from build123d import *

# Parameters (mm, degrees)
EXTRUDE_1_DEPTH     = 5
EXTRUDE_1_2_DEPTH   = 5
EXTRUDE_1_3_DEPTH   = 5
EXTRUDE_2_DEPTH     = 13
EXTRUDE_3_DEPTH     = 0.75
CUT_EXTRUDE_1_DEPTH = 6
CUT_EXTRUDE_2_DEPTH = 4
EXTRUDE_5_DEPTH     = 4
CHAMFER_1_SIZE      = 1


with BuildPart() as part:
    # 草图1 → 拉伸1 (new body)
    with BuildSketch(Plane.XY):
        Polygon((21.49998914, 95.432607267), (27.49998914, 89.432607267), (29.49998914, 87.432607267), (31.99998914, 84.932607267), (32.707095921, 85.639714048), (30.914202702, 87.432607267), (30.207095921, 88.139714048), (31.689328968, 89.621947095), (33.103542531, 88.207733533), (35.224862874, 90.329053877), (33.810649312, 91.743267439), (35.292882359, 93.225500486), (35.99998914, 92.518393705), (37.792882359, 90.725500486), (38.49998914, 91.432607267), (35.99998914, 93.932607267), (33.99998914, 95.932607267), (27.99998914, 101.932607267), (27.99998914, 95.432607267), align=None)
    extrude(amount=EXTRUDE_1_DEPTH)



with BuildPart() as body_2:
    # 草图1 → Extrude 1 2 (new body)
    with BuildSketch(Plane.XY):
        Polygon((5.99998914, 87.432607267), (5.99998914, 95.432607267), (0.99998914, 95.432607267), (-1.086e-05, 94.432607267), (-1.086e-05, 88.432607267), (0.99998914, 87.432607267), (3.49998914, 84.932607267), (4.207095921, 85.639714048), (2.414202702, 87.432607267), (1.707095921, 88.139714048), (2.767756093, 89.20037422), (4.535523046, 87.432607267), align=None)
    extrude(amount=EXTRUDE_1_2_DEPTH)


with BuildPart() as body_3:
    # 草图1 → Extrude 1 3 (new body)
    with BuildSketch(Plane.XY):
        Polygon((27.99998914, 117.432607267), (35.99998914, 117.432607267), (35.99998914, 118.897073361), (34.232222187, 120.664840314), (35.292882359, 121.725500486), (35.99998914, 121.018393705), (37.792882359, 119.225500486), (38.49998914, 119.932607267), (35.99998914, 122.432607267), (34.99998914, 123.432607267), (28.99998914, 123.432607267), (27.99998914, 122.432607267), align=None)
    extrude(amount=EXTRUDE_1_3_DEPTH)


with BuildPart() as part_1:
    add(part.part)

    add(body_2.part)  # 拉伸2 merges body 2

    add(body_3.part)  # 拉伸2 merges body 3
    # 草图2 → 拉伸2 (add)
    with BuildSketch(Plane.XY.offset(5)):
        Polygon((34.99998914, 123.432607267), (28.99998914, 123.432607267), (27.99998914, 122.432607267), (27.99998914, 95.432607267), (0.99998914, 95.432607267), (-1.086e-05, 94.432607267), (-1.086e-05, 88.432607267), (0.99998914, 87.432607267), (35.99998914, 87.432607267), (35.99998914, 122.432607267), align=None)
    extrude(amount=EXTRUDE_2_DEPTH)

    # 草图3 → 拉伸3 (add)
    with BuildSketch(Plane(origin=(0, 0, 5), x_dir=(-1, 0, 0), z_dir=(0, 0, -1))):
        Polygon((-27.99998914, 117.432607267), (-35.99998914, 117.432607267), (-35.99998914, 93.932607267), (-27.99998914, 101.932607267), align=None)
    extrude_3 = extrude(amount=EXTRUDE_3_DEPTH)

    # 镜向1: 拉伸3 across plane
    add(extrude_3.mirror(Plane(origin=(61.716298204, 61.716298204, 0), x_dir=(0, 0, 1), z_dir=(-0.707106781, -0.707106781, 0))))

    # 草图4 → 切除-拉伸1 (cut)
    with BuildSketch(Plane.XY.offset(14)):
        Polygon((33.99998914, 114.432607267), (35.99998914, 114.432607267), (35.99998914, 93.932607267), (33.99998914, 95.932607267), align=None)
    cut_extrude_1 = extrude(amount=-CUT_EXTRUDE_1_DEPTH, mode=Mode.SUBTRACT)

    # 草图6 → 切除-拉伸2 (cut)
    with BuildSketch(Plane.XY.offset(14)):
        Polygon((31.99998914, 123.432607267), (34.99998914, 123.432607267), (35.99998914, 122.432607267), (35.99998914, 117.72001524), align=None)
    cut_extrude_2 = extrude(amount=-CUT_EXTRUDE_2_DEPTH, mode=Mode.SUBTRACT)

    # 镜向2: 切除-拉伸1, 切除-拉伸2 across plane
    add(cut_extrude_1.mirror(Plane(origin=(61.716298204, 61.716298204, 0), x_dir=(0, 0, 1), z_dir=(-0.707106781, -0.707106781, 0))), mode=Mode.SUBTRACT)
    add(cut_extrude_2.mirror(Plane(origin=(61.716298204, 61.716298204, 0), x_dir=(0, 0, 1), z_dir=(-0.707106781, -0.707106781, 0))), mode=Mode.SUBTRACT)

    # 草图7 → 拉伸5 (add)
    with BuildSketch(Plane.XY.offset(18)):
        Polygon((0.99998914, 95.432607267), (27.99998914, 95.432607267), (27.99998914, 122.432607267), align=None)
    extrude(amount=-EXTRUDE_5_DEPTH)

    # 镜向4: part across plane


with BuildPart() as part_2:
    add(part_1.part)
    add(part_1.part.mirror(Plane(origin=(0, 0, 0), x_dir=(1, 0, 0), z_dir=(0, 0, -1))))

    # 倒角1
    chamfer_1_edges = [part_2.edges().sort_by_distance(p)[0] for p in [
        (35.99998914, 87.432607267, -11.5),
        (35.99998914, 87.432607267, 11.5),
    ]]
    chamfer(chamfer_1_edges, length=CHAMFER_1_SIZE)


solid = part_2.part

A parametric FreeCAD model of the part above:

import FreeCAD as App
import Part
import Sketcher
from FreeCAD import Vector
Q = App.Units.Quantity


def edges_at(feature, points):
    """Names of the edges that pass closest to the given points."""
    edges = feature.Shape.Edges
    near = lambda p: min(range(len(edges)), key=lambda i: edges[i].distToShape(Part.Vertex(*p))[0])
    return sorted({f"Edge{near(p) + 1}" for p in points})


def add_polygon(sketch, points):
    """Adds a closed chain of lines whose ends are joined by coincident constraints."""
    first, n = sketch.GeometryCount, len(points)
    for a, b in zip(points, points[1:] + points[:1]):
        sketch.addGeometry(Part.LineSegment(App.Vector(*a, 0), App.Vector(*b, 0)), False)
    for i in range(n):
        sketch.addConstraint(Sketcher.Constraint("Coincident", first + i, 2, first + (i + 1) % n, 1))

doc = App.newDocument("Part")
body = doc.addObject("PartDesign::Body", "Body")

# Sketch on XY plane
sketch1 = doc.addObject("Sketcher::SketchObject", "Sketch")
body.addObject(sketch1)
sketch1.AttachmentSupport = (doc.XY_Plane, [""])
sketch1.MapMode = "FlatFace"
add_polygon(sketch1, [(21.5, 95.4), (32, 84.9), (32.7, 85.6), (30.2, 88.1), (31.7, 89.6), (33.1, 88.2), (35.2, 90.3), (33.8, 91.7), (35.3, 93.2), (37.8, 90.7), (38.5, 91.4), (28, 101.9), (28, 95.4)])  # lines 0-12
sketch1.addConstraint(Sketcher.Constraint("Vertical", 11))
sketch1.addConstraint(Sketcher.Constraint("Horizontal", 12))
sketch1.addConstraint(Sketcher.Constraint("Perpendicular", 0, 1))
sketch1.addConstraint(Sketcher.Constraint("Perpendicular", 1, 2))
sketch1.addConstraint(Sketcher.Constraint("Perpendicular", 2, 3))
sketch1.addConstraint(Sketcher.Constraint("Perpendicular", 3, 4))
sketch1.addConstraint(Sketcher.Constraint("Perpendicular", 4, 5))
sketch1.addConstraint(Sketcher.Constraint("Perpendicular", 5, 6))
sketch1.addConstraint(Sketcher.Constraint("Perpendicular", 6, 7))
sketch1.addConstraint(Sketcher.Constraint("Perpendicular", 7, 8))
sketch1.addConstraint(Sketcher.Constraint("Perpendicular", 8, 9))
sketch1.addConstraint(Sketcher.Constraint("Perpendicular", 9, 10))
sketch1.addConstraint(Sketcher.Constraint("Equal", 12, 11))
sketch1.addConstraint(Sketcher.Constraint("Equal", 4, 6))
sketch1.addConstraint(Sketcher.Constraint("Equal", 3, 7))
sketch1.addConstraint(Sketcher.Constraint("Equal", 2, 8))
sketch1.addConstraint(Sketcher.Constraint("Equal", 1, 9))
sketch1.addConstraint(Sketcher.Constraint("Equal", 0, 10))
sketch1.addConstraint(Sketcher.Constraint("Distance", 1, Q("1 mm")))
sketch1.addConstraint(Sketcher.Constraint("Distance", 4, Q("2 mm")))
sketch1.addConstraint(Sketcher.Constraint("Distance", 5, Q("3 mm")))
sketch1.addConstraint(Sketcher.Constraint("DistanceX", 12, 2, 12, 1, Q("6.5 mm")))
sketch1.addConstraint(Sketcher.Constraint("DistanceX", 2, 2, 1, 2, Q("2.5 mm")))
sketch1.addConstraint(Sketcher.Constraint("DistanceY", -1, 1, 7, 2, Q("93.2255 mm")))
sketch1.addConstraint(Sketcher.Constraint("DistanceX", -1, 1, 0, 2, Q("31.999989 mm")))
sketch1.addConstraint(Sketcher.Constraint("DistanceX", -1, 1, 10, 2, Q("27.999989 mm")))
pad1 = doc.addObject("PartDesign::Pad", "Pad")
body.addObject(pad1)
pad1.Profile = sketch1
pad1.Length = 5
body2 = doc.addObject("PartDesign::Body", "Body001")

# Sketch on XY plane
sketch2 = doc.addObject("Sketcher::SketchObject", "Sketch001")
body2.addObject(sketch2)
sketch2.AttachmentSupport = (doc.getObject("XY_Plane001"), [""])
sketch2.MapMode = "FlatFace"
add_polygon(sketch2, [(6, 87.4), (6, 95.4), (1, 95.4), (0, 94.4), (0, 88.4), (3.5, 84.9), (4.2, 85.6), (1.7, 88.1), (2.8, 89.2), (4.5, 87.4)])  # lines 0-9
sketch2.addConstraint(Sketcher.Constraint("Vertical", 0))
sketch2.addConstraint(Sketcher.Constraint("Horizontal", 1))
sketch2.addConstraint(Sketcher.Constraint("Vertical", 3))
sketch2.addConstraint(Sketcher.Constraint("Horizontal", 9))
sketch2.addConstraint(Sketcher.Constraint("Perpendicular", 2, 4))
sketch2.addConstraint(Sketcher.Constraint("Perpendicular", 4, 5))
sketch2.addConstraint(Sketcher.Constraint("Perpendicular", 5, 6))
sketch2.addConstraint(Sketcher.Constraint("Perpendicular", 6, 7))
sketch2.addConstraint(Sketcher.Constraint("Perpendicular", 7, 8))
sketch2.addConstraint(Sketcher.Constraint("DistanceX", 1, 2, 1, 1, Q("5 mm")))
sketch2.addConstraint(Sketcher.Constraint("DistanceY", 0, 1, 0, 2, Q("8 mm")))
sketch2.addConstraint(Sketcher.Constraint("DistanceY", 3, 2, 3, 1, Q("6 mm")))
sketch2.addConstraint(Sketcher.Constraint("Angle", 2, Q("-135 deg")))
sketch2.addConstraint(Sketcher.Constraint("Distance", 5, Q("1 mm")))
sketch2.addConstraint(Sketcher.Constraint("DistanceX", 2, 2, 1, 2, Q("1 mm")))
sketch2.addConstraint(Sketcher.Constraint("Distance", 7, Q("1.5 mm")))
sketch2.addConstraint(Sketcher.Constraint("Distance", 8, Q("2.5 mm")))
sketch2.addConstraint(Sketcher.Constraint("DistanceX", 3, 2, 4, 2, Q("3.5 mm")))
sketch2.addConstraint(Sketcher.Constraint("DistanceX", -1, 1, 0, 2, Q("5.999989 mm")))
sketch2.addConstraint(Sketcher.Constraint("DistanceY", -1, 1, 0, 2, Q("95.432607 mm")))
pad2 = doc.addObject("PartDesign::Pad", "Pad001")
body2.addObject(pad2)
pad2.Profile = sketch2
pad2.Length = 5
body3 = doc.addObject("PartDesign::Body", "Body002")

# Sketch on XY plane
sketch3 = doc.addObject("Sketcher::SketchObject", "Sketch002")
body3.addObject(sketch3)
sketch3.AttachmentSupport = (doc.getObject("XY_Plane002"), [""])
sketch3.MapMode = "FlatFace"
add_polygon(sketch3, [(28, 117.4), (36, 117.4), (36, 118.9), (34.2, 120.7), (35.3, 121.7), (37.8, 119.2), (38.5, 119.9), (35, 123.4), (29, 123.4), (28, 122.4)])  # lines 0-9
sketch3.addConstraint(Sketcher.Constraint("Horizontal", 0))
sketch3.addConstraint(Sketcher.Constraint("Vertical", 1))
sketch3.addConstraint(Sketcher.Constraint("Horizontal", 7))
sketch3.addConstraint(Sketcher.Constraint("Vertical", 9))
sketch3.addConstraint(Sketcher.Constraint("Perpendicular", 2, 3))
sketch3.addConstraint(Sketcher.Constraint("Perpendicular", 3, 4))
sketch3.addConstraint(Sketcher.Constraint("Perpendicular", 4, 5))
sketch3.addConstraint(Sketcher.Constraint("Perpendicular", 5, 6))
sketch3.addConstraint(Sketcher.Constraint("Perpendicular", 6, 8))
sketch3.addConstraint(Sketcher.Constraint("DistanceX", 0, 1, 0, 2, Q("8 mm")))
sketch3.addConstraint(Sketcher.Constraint("DistanceX", 7, 2, 7, 1, Q("6 mm")))
sketch3.addConstraint(Sketcher.Constraint("DistanceY", 9, 2, 9, 1, Q("5 mm")))
sketch3.addConstraint(Sketcher.Constraint("Angle", 2, Q("135 deg")))
sketch3.addConstraint(Sketcher.Constraint("Distance", 5, Q("1 mm")))
sketch3.addConstraint(Sketcher.Constraint("DistanceX", 6, 2, 1, 2, Q("1 mm")))
sketch3.addConstraint(Sketcher.Constraint("Distance", 2, Q("2.5 mm")))
sketch3.addConstraint(Sketcher.Constraint("Distance", 3, Q("1.5 mm")))
sketch3.addConstraint(Sketcher.Constraint("DistanceX", 3, 2, 4, 2, Q("2.5 mm")))
sketch3.addConstraint(Sketcher.Constraint("DistanceY", -1, 1, 3, 2, Q("121.7255 mm")))
sketch3.addConstraint(Sketcher.Constraint("DistanceX", -1, 1, 0, 2, Q("35.999989 mm")))
pad3 = doc.addObject("PartDesign::Pad", "Pad002")
body3.addObject(pad3)
pad3.Profile = sketch3
pad3.Length = 5
body.AllowCompound = True
doc.recompute()

boolean = doc.addObject("PartDesign::Boolean", "Boolean")
body.addObject(boolean)
boolean.Type = "Fuse"
boolean.addObjects([body2])
doc.recompute()

boolean2 = doc.addObject("PartDesign::Boolean", "Boolean001")
body.addObject(boolean2)
boolean2.Type = "Fuse"
boolean2.addObjects([body3])

# Sketch on XY plane
sketch4 = doc.addObject("Sketcher::SketchObject", "Sketch003")
body.addObject(sketch4)
sketch4.AttachmentSupport = (doc.XY_Plane, [""])
sketch4.MapMode = "FlatFace"
sketch4.AttachmentOffset = App.Placement(Vector(0, 0, 5), App.Rotation())
add_polygon(sketch4, [(35, 123.4), (29, 123.4), (28, 122.4), (28, 95.4), (1, 95.4), (0, 94.4), (0, 88.4), (1, 87.4), (36, 87.4), (36, 122.4)])  # lines 0-9
sketch4.addConstraint(Sketcher.Constraint("Horizontal", 0))
sketch4.addConstraint(Sketcher.Constraint("Vertical", 2))
sketch4.addConstraint(Sketcher.Constraint("Horizontal", 3))
sketch4.addConstraint(Sketcher.Constraint("Vertical", 5))
sketch4.addConstraint(Sketcher.Constraint("Horizontal", 7))
sketch4.addConstraint(Sketcher.Constraint("Vertical", 8))
sketch4.addConstraint(Sketcher.Constraint("Parallel", 1, 4))
sketch4.addConstraint(Sketcher.Constraint("Perpendicular", 4, 6))
sketch4.addConstraint(Sketcher.Constraint("Parallel", 6, 9))
sketch4.addConstraint(Sketcher.Constraint("Horizontal", 1, 2, 8, 2))
sketch4.addConstraint(Sketcher.Constraint("Vertical", 3, 2, 6, 2))
sketch4.addConstraint(Sketcher.Constraint("Equal", 3, 2))
sketch4.addConstraint(Sketcher.Constraint("Equal", 0, 5))
sketch4.addConstraint(Sketcher.Constraint("Equal", 7, 8))
sketch4.addConstraint(Sketcher.Constraint("Equal", 1, 4))
sketch4.addConstraint(Sketcher.Constraint("DistanceX", 0, 2, 0, 1, Q("6 mm")))
sketch4.addConstraint(Sketcher.Constraint("DistanceX", 3, 2, 3, 1, Q("27 mm")))
sketch4.addConstraint(Sketcher.Constraint("DistanceX", 7, 1, 7, 2, Q("35 mm")))
sketch4.addConstraint(Sketcher.Constraint("DistanceX", -1, 1, 0, 2, Q("28.999989 mm")))
sketch4.addConstraint(Sketcher.Constraint("DistanceY", -1, 1, 0, 2, Q("123.432607 mm")))
pad4 = doc.addObject("PartDesign::Pad", "Pad003")
body.addObject(pad4)
pad4.Profile = sketch4
pad4.Length = 13

# Sketch on XY plane
sketch5 = doc.addObject("Sketcher::SketchObject", "Sketch004")
body.addObject(sketch5)
sketch5.AttachmentSupport = (doc.XY_Plane, [""])
sketch5.MapMode = "FlatFace"
sketch5.AttachmentOffset = App.Placement(Vector(0, 0, 5), App.Rotation())
add_polygon(sketch5, [(28, 117), (36, 117), (36, 94), (28, 102)])  # lines 0-3
sketch5.addConstraint(Sketcher.Constraint("Horizontal", 0))
sketch5.addConstraint(Sketcher.Constraint("Vertical", 1))
sketch5.addConstraint(Sketcher.Constraint("Vertical", 3))
sketch5.addConstraint(Sketcher.Constraint("DistanceX", 0, 1, 0, 2, Q("8 mm")))
sketch5.addConstraint(Sketcher.Constraint("Angle", 2, Q("135 deg")))
sketch5.addConstraint(Sketcher.Constraint("DistanceY", 1, 2, 1, 1, Q("23.5 mm")))
sketch5.addConstraint(Sketcher.Constraint("DistanceX", -1, 1, 0, 2, Q("35.999989 mm")))
sketch5.addConstraint(Sketcher.Constraint("DistanceY", -1, 1, 0, 2, Q("117.432607 mm")))
pad5 = doc.addObject("PartDesign::Pad", "Pad004")
body.addObject(pad5)
pad5.Profile = sketch5
pad5.Length = 0.75
pad5.Reversed = True
doc.recompute()

datumplane = doc.addObject("PartDesign::Plane", "DatumPlane")
body.addObject(datumplane)
datumplane.Placement = App.Placement(Vector(61.716298, 61.716298, 0), App.Rotation(Vector(-0.707106781, 0.707106781, 0), Vector(0, 0, -1), Vector(-0.707106781, -0.707106781, 0), "ZXY"))
mirrored = doc.addObject("PartDesign::Mirrored", "Mirrored")
body.addObject(mirrored)
mirrored.Originals = [pad5]
mirrored.MirrorPlane = (datumplane, [""])
body.Tip = mirrored

# Sketch on XY plane
sketch6 = doc.addObject("Sketcher::SketchObject", "Sketch005")
body.addObject(sketch6)
sketch6.AttachmentSupport = (doc.XY_Plane, [""])
sketch6.MapMode = "FlatFace"
sketch6.AttachmentOffset = App.Placement(Vector(0, 0, 14), App.Rotation())
add_polygon(sketch6, [(36, 114.4), (34, 114.4), (34, 95.9), (36, 93.9)])  # lines 0-3
sketch6.addConstraint(Sketcher.Constraint("Horizontal", 0))
sketch6.addConstraint(Sketcher.Constraint("Vertical", 1))
sketch6.addConstraint(Sketcher.Constraint("Vertical", 3))
sketch6.addConstraint(Sketcher.Constraint("DistanceX", 0, 2, 0, 1, Q("2 mm")))
sketch6.addConstraint(Sketcher.Constraint("Angle", 2, Q("-45 deg")))
sketch6.addConstraint(Sketcher.Constraint("DistanceY", 1, 2, 1, 1, Q("18.5 mm")))
sketch6.addConstraint(Sketcher.Constraint("DistanceX", -1, 1, 0, 2, Q("33.999989 mm")))
sketch6.addConstraint(Sketcher.Constraint("DistanceY", -1, 1, 0, 2, Q("114.432607 mm")))
pocket1 = doc.addObject("PartDesign::Pocket", "Pocket")
body.addObject(pocket1)
pocket1.Profile = sketch6
pocket1.Length = 6

# Sketch on XY plane
sketch7 = doc.addObject("Sketcher::SketchObject", "Sketch006")
body.addObject(sketch7)
sketch7.AttachmentSupport = (doc.XY_Plane, [""])
sketch7.MapMode = "FlatFace"
sketch7.AttachmentOffset = App.Placement(Vector(0, 0, 14), App.Rotation())
add_polygon(sketch7, [(35, 123.4), (32, 123.4), (36, 117.7), (36, 122.4)])  # lines 0-3
sketch7.addConstraint(Sketcher.Constraint("Horizontal", 0))
sketch7.addConstraint(Sketcher.Constraint("Vertical", 2))
sketch7.addConstraint(Sketcher.Constraint("DistanceX", 0, 2, 0, 1, Q("3 mm")))
sketch7.addConstraint(Sketcher.Constraint("Angle", 1, Q("-55 deg")))
sketch7.addConstraint(Sketcher.Constraint("Angle", 3, Q("135 deg")))
sketch7.addConstraint(Sketcher.Constraint("DistanceX", 0, 2, 1, 2, Q("4 mm")))
sketch7.addConstraint(Sketcher.Constraint("DistanceX", -1, 1, 0, 2, Q("31.999989 mm")))
sketch7.addConstraint(Sketcher.Constraint("DistanceY", -1, 1, 0, 2, Q("123.432607 mm")))
pocket2 = doc.addObject("PartDesign::Pocket", "Pocket001")
body.addObject(pocket2)
pocket2.Profile = sketch7
pocket2.Length = 4
doc.recompute()

datumplane2 = doc.addObject("PartDesign::Plane", "DatumPlane001")
body.addObject(datumplane2)
datumplane2.Placement = App.Placement(Vector(61.716298, 61.716298, 0), App.Rotation(Vector(-0.707106781, 0.707106781, 0), Vector(0, 0, -1), Vector(-0.707106781, -0.707106781, 0), "ZXY"))
mirrored2 = doc.addObject("PartDesign::Mirrored", "Mirrored001")
body.addObject(mirrored2)
mirrored2.Originals = [pocket1, pocket2]
mirrored2.MirrorPlane = (datumplane2, [""])
body.Tip = mirrored2

# Sketch on XY plane
sketch8 = doc.addObject("Sketcher::SketchObject", "Sketch007")
body.addObject(sketch8)
sketch8.AttachmentSupport = (doc.XY_Plane, [""])
sketch8.MapMode = "FlatFace"
sketch8.AttachmentOffset = App.Placement(Vector(0, 0, 18), App.Rotation())
add_polygon(sketch8, [(1, 95), (28, 95), (28, 122)])  # lines 0-2
sketch8.addConstraint(Sketcher.Constraint("Horizontal", 0))
sketch8.addConstraint(Sketcher.Constraint("Vertical", 1))
sketch8.addConstraint(Sketcher.Constraint("Equal", 0, 1))
sketch8.addConstraint(Sketcher.Constraint("DistanceX", 0, 1, 0, 2, Q("27 mm")))
sketch8.addConstraint(Sketcher.Constraint("DistanceX", -1, 1, 0, 2, Q("27.999989 mm")))
sketch8.addConstraint(Sketcher.Constraint("DistanceY", -1, 1, 0, 2, Q("95.432607 mm")))
pad6 = doc.addObject("PartDesign::Pad", "Pad005")
body.addObject(pad6)
pad6.Profile = sketch8
pad6.Length = 4
pad6.Reversed = True
body4 = doc.addObject("PartDesign::Body", "Body003")
doc.recompute()

body4.BaseFeature = body
doc.recompute()

mirroring = doc.addObject("Part::Mirroring", "Mirroring")
mirroring.Source = body
mirroring.Base = Vector(0, 0, 0)
mirroring.Normal = Vector(0, 0, -1)
body5 = doc.addObject("PartDesign::Body", "Body004")
body5.BaseFeature = mirroring
boolean3 = doc.addObject("PartDesign::Boolean", "Boolean002")
body4.addObject(boolean3)
boolean3.Type = "Fuse"
boolean3.addObjects([body5])
doc.recompute()

chamfer = doc.addObject("PartDesign::Chamfer", "Chamfer")
body4.addObject(chamfer)
chamfer.Base = (boolean3, edges_at(boolean3, [(36, 87.433, -11.5), (36, 87.433, 11.5)]))
chamfer.Size = 1
mirroring.Visibility = False

doc.recompute()
